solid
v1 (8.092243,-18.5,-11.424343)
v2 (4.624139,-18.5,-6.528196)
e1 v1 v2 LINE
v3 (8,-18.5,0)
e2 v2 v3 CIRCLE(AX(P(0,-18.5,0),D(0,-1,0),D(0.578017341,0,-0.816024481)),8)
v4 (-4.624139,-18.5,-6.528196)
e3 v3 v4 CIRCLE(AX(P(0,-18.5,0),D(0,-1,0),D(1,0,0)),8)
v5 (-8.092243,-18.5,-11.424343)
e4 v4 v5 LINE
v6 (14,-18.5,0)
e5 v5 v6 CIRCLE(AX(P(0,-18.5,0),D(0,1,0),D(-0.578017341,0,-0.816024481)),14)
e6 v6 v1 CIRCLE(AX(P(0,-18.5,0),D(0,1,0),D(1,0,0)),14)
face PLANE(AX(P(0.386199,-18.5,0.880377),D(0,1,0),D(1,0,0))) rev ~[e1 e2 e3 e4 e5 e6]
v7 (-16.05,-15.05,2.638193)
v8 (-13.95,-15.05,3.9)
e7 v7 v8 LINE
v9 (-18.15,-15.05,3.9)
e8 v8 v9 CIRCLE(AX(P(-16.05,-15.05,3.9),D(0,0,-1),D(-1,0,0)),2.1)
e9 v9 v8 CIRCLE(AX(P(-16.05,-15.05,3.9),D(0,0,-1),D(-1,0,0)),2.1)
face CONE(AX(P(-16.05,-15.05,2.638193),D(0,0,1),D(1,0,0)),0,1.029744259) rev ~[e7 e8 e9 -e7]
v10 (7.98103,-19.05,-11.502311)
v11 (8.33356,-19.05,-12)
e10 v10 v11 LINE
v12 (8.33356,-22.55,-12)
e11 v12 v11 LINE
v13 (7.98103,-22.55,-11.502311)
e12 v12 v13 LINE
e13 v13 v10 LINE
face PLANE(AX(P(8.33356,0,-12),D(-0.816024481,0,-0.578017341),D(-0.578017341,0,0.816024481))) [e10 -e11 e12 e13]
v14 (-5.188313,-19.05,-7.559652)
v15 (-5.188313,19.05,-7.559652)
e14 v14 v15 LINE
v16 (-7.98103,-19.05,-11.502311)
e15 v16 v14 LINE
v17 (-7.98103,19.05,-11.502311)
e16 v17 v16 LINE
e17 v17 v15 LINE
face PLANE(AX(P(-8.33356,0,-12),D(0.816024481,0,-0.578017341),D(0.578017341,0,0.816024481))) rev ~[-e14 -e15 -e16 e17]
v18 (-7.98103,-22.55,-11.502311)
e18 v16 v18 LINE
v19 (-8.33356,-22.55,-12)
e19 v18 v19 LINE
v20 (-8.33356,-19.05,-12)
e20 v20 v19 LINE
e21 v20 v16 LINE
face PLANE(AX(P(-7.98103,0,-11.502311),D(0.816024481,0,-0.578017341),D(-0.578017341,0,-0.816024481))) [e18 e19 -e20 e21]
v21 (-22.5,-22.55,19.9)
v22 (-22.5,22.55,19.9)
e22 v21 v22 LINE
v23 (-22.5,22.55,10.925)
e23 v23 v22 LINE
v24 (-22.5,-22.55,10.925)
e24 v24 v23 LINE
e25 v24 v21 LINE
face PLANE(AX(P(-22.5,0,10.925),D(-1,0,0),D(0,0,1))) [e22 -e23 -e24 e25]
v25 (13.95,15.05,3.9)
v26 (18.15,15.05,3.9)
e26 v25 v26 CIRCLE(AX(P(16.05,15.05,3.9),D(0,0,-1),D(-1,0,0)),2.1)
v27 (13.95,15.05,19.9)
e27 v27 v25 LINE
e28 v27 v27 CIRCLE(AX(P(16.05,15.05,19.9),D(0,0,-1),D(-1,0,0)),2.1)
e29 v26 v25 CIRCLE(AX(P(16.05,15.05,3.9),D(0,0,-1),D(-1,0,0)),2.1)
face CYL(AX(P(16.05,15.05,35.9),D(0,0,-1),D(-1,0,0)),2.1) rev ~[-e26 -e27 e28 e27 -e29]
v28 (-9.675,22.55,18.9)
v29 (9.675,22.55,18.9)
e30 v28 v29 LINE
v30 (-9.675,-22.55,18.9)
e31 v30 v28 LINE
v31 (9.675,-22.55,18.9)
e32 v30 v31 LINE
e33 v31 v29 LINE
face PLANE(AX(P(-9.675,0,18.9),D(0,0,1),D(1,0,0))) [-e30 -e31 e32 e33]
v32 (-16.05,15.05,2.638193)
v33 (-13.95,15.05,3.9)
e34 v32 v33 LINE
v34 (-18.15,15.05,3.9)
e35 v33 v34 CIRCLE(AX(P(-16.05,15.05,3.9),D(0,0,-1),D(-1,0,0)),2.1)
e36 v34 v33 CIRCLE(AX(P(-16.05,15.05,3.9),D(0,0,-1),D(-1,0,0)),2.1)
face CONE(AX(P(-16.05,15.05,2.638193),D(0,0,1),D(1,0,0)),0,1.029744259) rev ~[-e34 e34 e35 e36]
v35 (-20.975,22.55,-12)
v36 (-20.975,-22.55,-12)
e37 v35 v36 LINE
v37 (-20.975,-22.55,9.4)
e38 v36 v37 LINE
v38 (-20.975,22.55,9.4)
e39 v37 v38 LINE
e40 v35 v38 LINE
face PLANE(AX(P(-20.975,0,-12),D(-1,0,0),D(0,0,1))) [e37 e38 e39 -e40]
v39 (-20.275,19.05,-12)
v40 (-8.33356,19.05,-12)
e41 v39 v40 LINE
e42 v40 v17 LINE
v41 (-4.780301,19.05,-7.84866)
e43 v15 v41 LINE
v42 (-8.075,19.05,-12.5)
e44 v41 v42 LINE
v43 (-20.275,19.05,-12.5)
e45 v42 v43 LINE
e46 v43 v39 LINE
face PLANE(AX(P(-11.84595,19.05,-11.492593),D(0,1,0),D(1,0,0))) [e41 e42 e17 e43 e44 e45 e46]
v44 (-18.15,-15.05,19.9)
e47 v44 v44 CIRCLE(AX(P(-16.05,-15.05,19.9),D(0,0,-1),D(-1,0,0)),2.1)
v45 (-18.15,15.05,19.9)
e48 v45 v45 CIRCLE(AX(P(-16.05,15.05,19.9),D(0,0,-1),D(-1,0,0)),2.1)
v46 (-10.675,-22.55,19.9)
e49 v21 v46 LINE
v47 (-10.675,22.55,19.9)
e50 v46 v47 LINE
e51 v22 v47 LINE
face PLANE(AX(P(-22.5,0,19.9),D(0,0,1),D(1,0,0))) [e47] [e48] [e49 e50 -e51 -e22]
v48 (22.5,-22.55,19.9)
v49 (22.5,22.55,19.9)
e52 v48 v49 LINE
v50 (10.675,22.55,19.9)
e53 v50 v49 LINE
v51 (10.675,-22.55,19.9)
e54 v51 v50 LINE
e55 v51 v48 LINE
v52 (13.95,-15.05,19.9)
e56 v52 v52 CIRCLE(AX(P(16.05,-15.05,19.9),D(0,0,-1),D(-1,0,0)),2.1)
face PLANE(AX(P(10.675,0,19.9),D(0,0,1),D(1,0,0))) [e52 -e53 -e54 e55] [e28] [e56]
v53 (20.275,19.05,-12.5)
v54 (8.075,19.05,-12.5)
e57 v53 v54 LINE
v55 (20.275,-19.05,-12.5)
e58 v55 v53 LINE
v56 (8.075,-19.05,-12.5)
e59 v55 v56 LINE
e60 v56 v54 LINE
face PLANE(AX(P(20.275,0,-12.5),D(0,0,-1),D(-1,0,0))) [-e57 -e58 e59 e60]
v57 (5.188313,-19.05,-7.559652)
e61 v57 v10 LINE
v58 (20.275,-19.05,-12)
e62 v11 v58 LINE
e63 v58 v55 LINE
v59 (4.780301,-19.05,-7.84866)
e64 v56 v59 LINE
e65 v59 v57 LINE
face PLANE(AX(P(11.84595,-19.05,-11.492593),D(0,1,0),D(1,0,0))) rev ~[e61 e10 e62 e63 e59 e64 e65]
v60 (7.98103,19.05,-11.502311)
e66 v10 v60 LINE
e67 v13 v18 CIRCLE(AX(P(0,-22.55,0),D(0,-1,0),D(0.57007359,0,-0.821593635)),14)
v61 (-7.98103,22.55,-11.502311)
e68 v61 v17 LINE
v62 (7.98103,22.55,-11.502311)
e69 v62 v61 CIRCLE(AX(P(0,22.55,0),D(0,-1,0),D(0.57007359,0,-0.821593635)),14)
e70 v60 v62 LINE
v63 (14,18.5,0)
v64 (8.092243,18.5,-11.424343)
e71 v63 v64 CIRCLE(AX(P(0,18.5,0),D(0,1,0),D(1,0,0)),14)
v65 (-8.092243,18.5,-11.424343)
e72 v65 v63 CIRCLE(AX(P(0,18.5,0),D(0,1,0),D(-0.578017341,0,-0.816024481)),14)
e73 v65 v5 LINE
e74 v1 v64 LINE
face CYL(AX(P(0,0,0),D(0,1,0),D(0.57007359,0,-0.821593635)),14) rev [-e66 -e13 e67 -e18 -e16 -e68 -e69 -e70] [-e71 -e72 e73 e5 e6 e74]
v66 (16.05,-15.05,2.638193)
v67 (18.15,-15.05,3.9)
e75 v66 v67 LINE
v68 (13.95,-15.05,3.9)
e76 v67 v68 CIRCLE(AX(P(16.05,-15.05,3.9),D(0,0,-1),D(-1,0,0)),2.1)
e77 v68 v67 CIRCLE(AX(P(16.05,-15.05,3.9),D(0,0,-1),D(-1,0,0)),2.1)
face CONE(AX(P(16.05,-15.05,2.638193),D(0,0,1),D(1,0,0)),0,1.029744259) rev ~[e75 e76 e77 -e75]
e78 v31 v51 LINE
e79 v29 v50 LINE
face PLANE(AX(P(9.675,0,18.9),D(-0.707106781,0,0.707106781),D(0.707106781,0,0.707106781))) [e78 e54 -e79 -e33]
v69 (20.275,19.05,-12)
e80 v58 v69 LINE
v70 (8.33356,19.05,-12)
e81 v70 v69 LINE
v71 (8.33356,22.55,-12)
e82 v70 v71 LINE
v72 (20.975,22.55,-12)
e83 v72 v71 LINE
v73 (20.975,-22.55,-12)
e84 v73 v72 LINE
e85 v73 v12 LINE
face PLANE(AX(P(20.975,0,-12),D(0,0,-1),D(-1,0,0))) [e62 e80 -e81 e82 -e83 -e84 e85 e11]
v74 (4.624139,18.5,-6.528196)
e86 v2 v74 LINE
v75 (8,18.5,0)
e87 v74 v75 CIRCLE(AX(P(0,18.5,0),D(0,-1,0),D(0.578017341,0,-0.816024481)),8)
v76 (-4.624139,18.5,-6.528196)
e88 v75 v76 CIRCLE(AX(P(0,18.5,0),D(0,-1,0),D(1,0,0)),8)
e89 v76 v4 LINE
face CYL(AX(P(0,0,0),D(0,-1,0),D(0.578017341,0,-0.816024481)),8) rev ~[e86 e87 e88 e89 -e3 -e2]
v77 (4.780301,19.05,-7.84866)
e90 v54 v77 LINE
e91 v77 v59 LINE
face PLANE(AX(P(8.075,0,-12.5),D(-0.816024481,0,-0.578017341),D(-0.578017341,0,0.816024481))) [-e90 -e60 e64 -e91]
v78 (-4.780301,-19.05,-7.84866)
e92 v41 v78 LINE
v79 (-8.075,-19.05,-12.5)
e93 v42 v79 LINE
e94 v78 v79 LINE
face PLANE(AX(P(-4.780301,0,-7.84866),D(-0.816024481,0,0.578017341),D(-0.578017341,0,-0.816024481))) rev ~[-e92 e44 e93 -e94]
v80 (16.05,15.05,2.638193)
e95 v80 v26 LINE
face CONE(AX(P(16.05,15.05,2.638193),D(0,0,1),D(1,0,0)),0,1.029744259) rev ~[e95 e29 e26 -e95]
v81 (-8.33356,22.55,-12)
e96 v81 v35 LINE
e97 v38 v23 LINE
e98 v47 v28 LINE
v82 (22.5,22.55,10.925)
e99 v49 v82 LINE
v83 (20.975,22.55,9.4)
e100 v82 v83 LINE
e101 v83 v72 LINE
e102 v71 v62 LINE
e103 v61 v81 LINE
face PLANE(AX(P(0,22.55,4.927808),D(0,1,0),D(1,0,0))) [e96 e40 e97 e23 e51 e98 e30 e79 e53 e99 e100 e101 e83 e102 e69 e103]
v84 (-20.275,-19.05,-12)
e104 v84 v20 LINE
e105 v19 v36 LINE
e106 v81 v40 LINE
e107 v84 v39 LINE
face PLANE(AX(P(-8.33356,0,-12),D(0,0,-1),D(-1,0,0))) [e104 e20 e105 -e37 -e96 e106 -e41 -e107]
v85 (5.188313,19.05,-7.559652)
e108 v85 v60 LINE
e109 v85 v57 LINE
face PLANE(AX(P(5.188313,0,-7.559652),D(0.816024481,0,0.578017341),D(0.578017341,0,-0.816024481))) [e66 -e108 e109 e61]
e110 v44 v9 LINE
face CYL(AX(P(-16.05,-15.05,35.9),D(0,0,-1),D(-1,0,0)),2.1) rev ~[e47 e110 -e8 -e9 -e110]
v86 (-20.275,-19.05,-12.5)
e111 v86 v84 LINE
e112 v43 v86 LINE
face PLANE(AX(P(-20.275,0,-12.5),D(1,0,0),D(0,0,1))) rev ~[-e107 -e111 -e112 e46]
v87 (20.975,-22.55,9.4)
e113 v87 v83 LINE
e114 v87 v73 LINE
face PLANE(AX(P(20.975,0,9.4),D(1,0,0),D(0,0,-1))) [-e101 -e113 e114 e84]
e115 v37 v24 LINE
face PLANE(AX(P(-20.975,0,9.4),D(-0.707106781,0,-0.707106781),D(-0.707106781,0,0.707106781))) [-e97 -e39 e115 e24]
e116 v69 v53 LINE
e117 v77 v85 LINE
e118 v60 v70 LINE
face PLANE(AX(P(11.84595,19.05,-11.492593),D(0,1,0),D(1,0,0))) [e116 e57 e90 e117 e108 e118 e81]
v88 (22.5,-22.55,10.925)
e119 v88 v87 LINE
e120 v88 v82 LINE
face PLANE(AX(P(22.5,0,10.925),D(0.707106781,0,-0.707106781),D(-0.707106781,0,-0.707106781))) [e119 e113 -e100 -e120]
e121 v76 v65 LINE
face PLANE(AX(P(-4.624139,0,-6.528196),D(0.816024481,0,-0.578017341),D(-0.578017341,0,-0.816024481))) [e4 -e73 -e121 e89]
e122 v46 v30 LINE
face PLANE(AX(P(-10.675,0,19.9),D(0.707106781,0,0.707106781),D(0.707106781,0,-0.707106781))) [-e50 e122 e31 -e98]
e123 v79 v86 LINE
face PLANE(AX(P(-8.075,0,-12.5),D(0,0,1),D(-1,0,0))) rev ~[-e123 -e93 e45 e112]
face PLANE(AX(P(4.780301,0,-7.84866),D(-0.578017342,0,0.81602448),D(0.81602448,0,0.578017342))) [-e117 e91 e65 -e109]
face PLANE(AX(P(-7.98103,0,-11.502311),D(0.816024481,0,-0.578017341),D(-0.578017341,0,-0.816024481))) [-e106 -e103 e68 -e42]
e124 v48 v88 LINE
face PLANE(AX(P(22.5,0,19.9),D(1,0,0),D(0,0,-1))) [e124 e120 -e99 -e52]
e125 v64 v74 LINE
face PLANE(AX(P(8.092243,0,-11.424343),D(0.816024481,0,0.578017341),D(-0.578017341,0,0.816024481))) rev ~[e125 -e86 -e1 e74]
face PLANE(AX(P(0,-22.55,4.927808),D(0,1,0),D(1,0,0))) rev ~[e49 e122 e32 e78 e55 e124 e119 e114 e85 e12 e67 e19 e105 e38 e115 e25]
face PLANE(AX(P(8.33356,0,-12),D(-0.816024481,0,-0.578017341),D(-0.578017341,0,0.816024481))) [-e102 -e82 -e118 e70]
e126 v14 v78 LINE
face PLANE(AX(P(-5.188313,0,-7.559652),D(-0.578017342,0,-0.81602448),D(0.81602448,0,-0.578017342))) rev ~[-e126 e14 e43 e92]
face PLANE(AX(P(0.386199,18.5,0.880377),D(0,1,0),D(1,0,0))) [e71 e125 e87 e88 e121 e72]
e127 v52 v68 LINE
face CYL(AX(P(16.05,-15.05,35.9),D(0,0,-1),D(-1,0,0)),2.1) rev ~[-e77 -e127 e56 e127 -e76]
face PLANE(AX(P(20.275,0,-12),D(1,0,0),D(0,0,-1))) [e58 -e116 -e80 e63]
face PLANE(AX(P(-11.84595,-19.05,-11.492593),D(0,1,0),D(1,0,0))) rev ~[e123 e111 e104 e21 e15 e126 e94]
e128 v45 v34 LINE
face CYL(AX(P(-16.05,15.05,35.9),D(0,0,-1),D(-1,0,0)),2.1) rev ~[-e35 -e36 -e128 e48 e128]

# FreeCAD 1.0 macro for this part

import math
import FreeCAD as App
import Part
import Sketcher
from FreeCAD import Vector


def add_polygon(sketch, points):
    """Adds a closed chain of lines whose ends are joined by coincident constraints."""
    first, n = sketch.GeometryCount, len(points)
    for a, b in zip(points, points[1:] + points[:1]):
        sketch.addGeometry(Part.LineSegment(App.Vector(*a, 0), App.Vector(*b, 0)), False)
    for i in range(n):
        sketch.addConstraint(Sketcher.Constraint("Coincident", first + i, 2, first + (i + 1) % n, 1))

doc = App.newDocument("Part")
body = doc.addObject("PartDesign::Body", "Body")

# Sketch on XZ plane
sketch1 = body.newObject("Sketcher::SketchObject", "Sketch")
sketch1.AttachmentSupport = (doc.getObject("XZ_Plane"), [""])
sketch1.MapMode = "FlatFace"
sketch1.addGeometry([
    Part.LineSegment(Vector(-20.975, -12, 0), Vector(-20.975, 9.4, 0)),  # 0
    Part.LineSegment(Vector(-20.975, 9.4, 0), Vector(-22.5, 10.925, 0)),  # 1
    Part.LineSegment(Vector(-22.5, 10.925, 0), Vector(-22.5, 19.9, 0)),  # 2
    Part.LineSegment(Vector(-22.5, 19.9, 0), Vector(-10.675, 19.9, 0)),  # 3
    Part.LineSegment(Vector(-10.675, 19.9, 0), Vector(-9.675, 18.9, 0)),  # 4
    Part.LineSegment(Vector(-9.675, 18.9, 0), Vector(9.675, 18.9, 0)),  # 5
    Part.LineSegment(Vector(9.675, 18.9, 0), Vector(10.675, 19.9, 0)),  # 6
    Part.LineSegment(Vector(10.675, 19.9, 0), Vector(22.5, 19.9, 0)),  # 7
    Part.LineSegment(Vector(22.5, 19.9, 0), Vector(22.5, 10.925, 0)),  # 8
    Part.LineSegment(Vector(22.5, 10.925, 0), Vector(20.975, 9.4, 0)),  # 9
    Part.LineSegment(Vector(20.975, 9.4, 0), Vector(20.975, -12, 0)),  # 10
    Part.LineSegment(Vector(20.975, -12, 0), Vector(8.33356, -12, 0)),  # 11
    Part.LineSegment(Vector(8.33356, -12, 0), Vector(7.98103, -11.502311, 0)),  # 12
    Part.ArcOfCircle(Part.Circle(Vector(0, 0, 0), Vector(0, 0, 1), 14), math.radians(-55.244642), math.radians(235.244642)),  # 13
    Part.LineSegment(Vector(-7.98103, -11.502311, 0), Vector(-8.33356, -12, 0)),  # 14
    Part.LineSegment(Vector(-8.33356, -12, 0), Vector(-20.975, -12, 0)),  # 15
], False)
sketch1.addConstraint([
    Sketcher.Constraint("Coincident", 0, 2, 1, 1),
    Sketcher.Constraint("Coincident", 1, 2, 2, 1),
    Sketcher.Constraint("Coincident", 2, 2, 3, 1),
    Sketcher.Constraint("Coincident", 3, 2, 4, 1),
    Sketcher.Constraint("Coincident", 4, 2, 5, 1),
    Sketcher.Constraint("Coincident", 5, 2, 6, 1),
    Sketcher.Constraint("Coincident", 6, 2, 7, 1),
    Sketcher.Constraint("Coincident", 7, 2, 8, 1),
    Sketcher.Constraint("Coincident", 8, 2, 9, 1),
    Sketcher.Constraint("Coincident", 9, 2, 10, 1),
    Sketcher.Constraint("Coincident", 10, 2, 11, 1),
    Sketcher.Constraint("Coincident", 11, 2, 12, 1),
    Sketcher.Constraint("Coincident", 12, 2, 13, 1),
    Sketcher.Constraint("Coincident", 13, 2, 14, 1),
    Sketcher.Constraint("Coincident", 14, 2, 15, 1),
    Sketcher.Constraint("Coincident", 15, 2, 0, 1),
    Sketcher.Constraint("Vertical", 0),
    Sketcher.Constraint("Vertical", 2),
    Sketcher.Constraint("Horizontal", 3),
    Sketcher.Constraint("Horizontal", 5),
    Sketcher.Constraint("Horizontal", 7),
    Sketcher.Constraint("Vertical", 8),
    Sketcher.Constraint("Vertical", 10),
    Sketcher.Constraint("Horizontal", 11),
    Sketcher.Constraint("Horizontal", 15),
    Sketcher.Constraint("Coincident", 13, 3, -1, 1),
    Sketcher.Constraint("Symmetric", 3, 2, 6, 2, -2),
    Sketcher.Constraint("Symmetric", 1, 2, 8, 2, -2),
    Sketcher.Constraint("Symmetric", 0, 2, 9, 2, -2),
    Sketcher.Constraint("Symmetric", 11, 2, 14, 2, -2),
    Sketcher.Constraint("Parallel", 1, 4),
    Sketcher.Constraint("Perpendicular", 4, 6),
    Sketcher.Constraint("Parallel", 6, 9),
    Sketcher.Constraint("Horizontal", 12, 2, 13, 2),
    Sketcher.Constraint("Radius", 13, 14.0),
    Sketcher.Constraint("DistanceY", 0, 1, 0, 2, 21.4),
    Sketcher.Constraint("DistanceY", 10, 2, -1, 1, 12.0),
    Sketcher.Constraint("DistanceX", 3, 2, 4, 2, 1.0),
    Sketcher.Constraint("DistanceX", 5, 1, 5, 2, 19.35),
    Sketcher.Constraint("DistanceX", 1, 2, -1, 1, 22.5),
    Sketcher.Constraint("DistanceY", -1, 1, 2, 2, 19.9),
    Sketcher.Constraint("DistanceX", 0, 2, 3, 2, 10.3),
    Sketcher.Constraint("DistanceX", 11, 2, 11, 1, 12.64144),
    Sketcher.Constraint("DistanceX", -1, 1, 12, 2, 7.98103),
])
pad1 = body.newObject("PartDesign::Pad", "Pad")
pad1.Profile = sketch1
pad1.Length = 45.1
pad1.Midplane = True

# Sketch on XZ plane
sketch2 = body.newObject("Sketcher::SketchObject", "Sketch001")
sketch2.AttachmentSupport = (doc.getObject("XZ_Plane"), [""])
sketch2.MapMode = "FlatFace"
sketch2.addGeometry([
    Part.LineSegment(Vector(-4.624139, -6.528196, 0), Vector(-8.092243, -11.424343, 0)),  # 0
    Part.ArcOfCircle(Part.Circle(Vector(0, 0, 0), Vector(0, 0, 1), 14), math.radians(0), math.radians(234.688787)),  # 1
    Part.ArcOfCircle(Part.Circle(Vector(0, 0, 0), Vector(0, 0, 1), 14), math.radians(-54.688787), math.radians(0)),  # 2
    Part.LineSegment(Vector(8.092243, -11.424343, 0), Vector(4.624139, -6.528196, 0)),  # 3
    Part.ArcOfCircle(Part.Circle(Vector(0, 0, 0), Vector(0, 0, 1), 8), math.radians(-54.688787), math.radians(0)),  # 4
    Part.ArcOfCircle(Part.Circle(Vector(0, 0, 0), Vector(0, 0, 1), 8), math.radians(0), math.radians(234.688787)),  # 5
], False)
sketch2.addConstraint([
    Sketcher.Constraint("Coincident", 0, 2, 1, 2),
    Sketcher.Constraint("Tangent", 1, 1, 2, 2),
    Sketcher.Constraint("Coincident", 2, 1, 3, 1),
    Sketcher.Constraint("Coincident", 3, 2, 4, 1),
    Sketcher.Constraint("Tangent", 4, 2, 5, 1),
    Sketcher.Constraint("Coincident", 5, 2, 0, 1),
    Sketcher.Constraint("Coincident", 1, 3, -1, 1),
    Sketcher.Constraint("Coincident", 4, 3, -1, 1),
    Sketcher.Constraint("Equal", 1, 2),
    Sketcher.Constraint("Equal", 4, 5),
    Sketcher.Constraint("PointOnObject", 1, 1, -1),
    Sketcher.Constraint("PointOnObject", 4, 2, -1),
    Sketcher.Constraint("Horizontal", 0, 2, 2, 1),
    Sketcher.Constraint("Horizontal", 3, 2, 5, 2),
    Sketcher.Constraint("Radius", 1, 14.0),
    Sketcher.Constraint("Radius", 4, 8.0),
    Sketcher.Constraint("DistanceX", -1, 1, 3, 2, 4.624139),
    Sketcher.Constraint("DistanceX", 0, 2, -1, 1, 8.092243),
])
pad2 = body.newObject("PartDesign::Pad", "Pad001")
pad2.Profile = sketch2
pad2.Length = 37
pad2.Midplane = True

# Sketch on XZ plane
sketch3 = body.newObject("Sketcher::SketchObject", "Sketch002")
sketch3.AttachmentSupport = (doc.getObject("XZ_Plane"), [""])
sketch3.MapMode = "FlatFace"
add_polygon(sketch3, [(-20.275, -12.5), (-20.275, -12), (-8.33356, -12), (-5.188313, -7.559652), (-4.780301, -7.84866), (-8.075, -12.5)])  # lines 0-5
add_polygon(sketch3, [(8.33356, -12), (20.275, -12), (20.275, -12.5), (8.075, -12.5), (4.780301, -7.84866), (5.188313, -7.559652)])  # lines 6-11
sketch3.addConstraint([
    Sketcher.Constraint("Vertical", 0),
    Sketcher.Constraint("Horizontal", 1),
    Sketcher.Constraint("Horizontal", 5),
    Sketcher.Constraint("Horizontal", 6),
    Sketcher.Constraint("Vertical", 7),
    Sketcher.Constraint("Horizontal", 8),
    Sketcher.Constraint("Symmetric", 0, 2, 6, 2, -2),
    Sketcher.Constraint("Symmetric", 4, 2, 8, 2, -2),
    Sketcher.Constraint("Symmetric", 3, 2, 9, 2, -2),
    Sketcher.Constraint("Symmetric", 2, 2, 10, 2, -2),
    Sketcher.Constraint("Perpendicular", 2, 3),
    Sketcher.Constraint("Perpendicular", 3, 4),
    Sketcher.Constraint("Perpendicular", 10, 11),
    Sketcher.Constraint("DistanceX", 5, 2, 5, 1, 12.2),
    Sketcher.Constraint("DistanceY", 0, 1, 0, 2, 0.5),
    Sketcher.Constraint("DistanceY", 0, 2, -1, 1, 12.0),
    Sketcher.Constraint("Distance", 3, 0.5),
    Sketcher.Constraint("Distance", 4, 5.7),
    Sketcher.Constraint("DistanceX", 4, 2, 6, 2, 28.35),
    Sketcher.Constraint("DistanceX", 1, 1, 1, 2, 11.94144),
])
pad3 = body.newObject("PartDesign::Pad", "Pad002")
pad3.Profile = sketch3
pad3.Length = 38.1
pad3.Midplane = True

# Sketch on XY plane
sketch4 = body.newObject("Sketcher::SketchObject", "Sketch003")
sketch4.AttachmentSupport = (doc.getObject("XY_Plane"), [""])
sketch4.MapMode = "FlatFace"
sketch4.AttachmentOffset = App.Placement(Vector(0, 0, 19.9), App.Rotation())
sketch4.addGeometry([
    Part.Circle(Vector(-16.05, 15.05, 0), Vector(0, 0, 1), 2.1),
    Part.Circle(Vector(16.05, 15.05, 0), Vector(0, 0, 1), 2.1),
    Part.Circle(Vector(16.05, -15.05, 0), Vector(0, 0, 1), 2.1),
    Part.Circle(Vector(-16.05, -15.05, 0), Vector(0, 0, 1), 2.1),
], False)
sketch4.addConstraint([
    Sketcher.Constraint("Equal", 0, 1),
    Sketcher.Constraint("Equal", 1, 2),
    Sketcher.Constraint("Equal", 2, 3),
    Sketcher.Constraint("Symmetric", 0, 3, 2, 3, -1, 1),
    Sketcher.Constraint("Symmetric", 1, 3, 3, 3, -1, 1),
    Sketcher.Constraint("Symmetric", 0, 3, 1, 3, -2),
    Sketcher.Constraint("Diameter", 0, 4.2),
    Sketcher.Constraint("DistanceX", 0, 3, 1, 3, 32.1),
    Sketcher.Constraint("DistanceY", 2, 3, 1, 3, 30.1),
])
doc.recompute()
hole = body.newObject("PartDesign::Hole", "Hole")
hole.Profile = sketch4
hole.ThreadType = "None"
hole.Diameter = 4.2
hole.DepthType = "Dimension"
hole.Depth = 16
hole.DrillPoint = "Angled"
hole.DrillPointAngle = 118

doc.recompute()
